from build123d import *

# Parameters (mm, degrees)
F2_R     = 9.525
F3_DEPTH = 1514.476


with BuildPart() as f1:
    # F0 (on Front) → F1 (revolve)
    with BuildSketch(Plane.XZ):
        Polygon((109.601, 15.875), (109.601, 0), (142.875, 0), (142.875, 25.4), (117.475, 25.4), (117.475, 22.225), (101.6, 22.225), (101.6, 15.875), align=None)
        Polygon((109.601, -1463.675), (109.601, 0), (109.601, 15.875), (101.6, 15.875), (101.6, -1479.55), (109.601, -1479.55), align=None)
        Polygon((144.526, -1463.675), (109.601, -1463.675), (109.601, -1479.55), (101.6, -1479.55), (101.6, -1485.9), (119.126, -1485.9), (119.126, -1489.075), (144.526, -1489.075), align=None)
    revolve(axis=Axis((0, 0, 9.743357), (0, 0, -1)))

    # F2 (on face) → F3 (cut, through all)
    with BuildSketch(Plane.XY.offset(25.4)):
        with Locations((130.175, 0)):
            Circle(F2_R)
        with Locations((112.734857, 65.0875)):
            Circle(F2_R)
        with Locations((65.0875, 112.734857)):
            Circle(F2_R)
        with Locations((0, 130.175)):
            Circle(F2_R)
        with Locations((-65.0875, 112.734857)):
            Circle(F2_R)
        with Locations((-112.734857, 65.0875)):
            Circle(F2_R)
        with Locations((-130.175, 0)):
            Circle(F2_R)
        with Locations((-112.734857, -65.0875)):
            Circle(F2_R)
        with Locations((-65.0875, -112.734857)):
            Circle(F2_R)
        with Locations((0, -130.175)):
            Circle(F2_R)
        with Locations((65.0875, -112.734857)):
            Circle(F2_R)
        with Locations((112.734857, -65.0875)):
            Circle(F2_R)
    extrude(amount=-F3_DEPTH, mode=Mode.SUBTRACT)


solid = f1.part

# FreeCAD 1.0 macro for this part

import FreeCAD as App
import Part
import Sketcher
Q = App.Units.Quantity


def add_polygon(sketch, points):
    """Adds a closed chain of lines whose ends are joined by coincident constraints."""
    first, n = sketch.GeometryCount, len(points)
    for a, b in zip(points, points[1:] + points[:1]):
        sketch.addGeometry(Part.LineSegment(App.Vector(*a, 0), App.Vector(*b, 0)), False)
    for i in range(n):
        sketch.addConstraint(Sketcher.Constraint("Coincident", first + i, 2, first + (i + 1) % n, 1))

doc = App.newDocument("Part")
params = doc.addObject("Spreadsheet::Sheet", "Params")
for row, (alias, value) in enumerate([
    ("sketch1_width", "1 in"),
    ("sketch1_width2", "1.31 in"),
    ("sketch1_width3", "0.69 in"),
    ("sketch1_width4", "0.625 in"),
    ("sketch1_height", "0.125 in"),
    ("revolution_angle", "360 deg"),
    ("sketch2_diameter", "0.75 in"),
], start=1):
    params.set(f"A{row}", alias)
    params.set(f"B{row}", "=" + value)
    params.setAlias(f"B{row}", alias)

body = doc.addObject("PartDesign::Body", "Body")

sketch1 = doc.addObject("Sketcher::SketchObject", "Sketch")
body.addObject(sketch1)
sketch1.AttachmentSupport = (doc.XZ_Plane, [""])
sketch1.MapMode = "FlatFace"
add_polygon(sketch1, [(109.6, 0), (142.9, 0), (142.9, 25.4), (117.5, 25.4), (117.5, 22.2), (101.6, 22.2), (101.6, -1485.9), (119.1, -1485.9), (119.1, -1489.1), (144.5, -1489.1), (144.5, -1463.7), (109.6, -1463.7)])
sketch1.addConstraint(Sketcher.Constraint("Horizontal", 0))
sketch1.addConstraint(Sketcher.Constraint("Vertical", 1))
sketch1.addConstraint(Sketcher.Constraint("Horizontal", 2))
sketch1.addConstraint(Sketcher.Constraint("Vertical", 3))
sketch1.addConstraint(Sketcher.Constraint("Horizontal", 4))
sketch1.addConstraint(Sketcher.Constraint("Vertical", 5))
sketch1.addConstraint(Sketcher.Constraint("Horizontal", 6))
sketch1.addConstraint(Sketcher.Constraint("Vertical", 7))
sketch1.addConstraint(Sketcher.Constraint("Horizontal", 8))
sketch1.addConstraint(Sketcher.Constraint("Vertical", 9))
sketch1.addConstraint(Sketcher.Constraint("Horizontal", 10))
sketch1.addConstraint(Sketcher.Constraint("Vertical", 11))
sketch1.addConstraint(Sketcher.Constraint("PointOnObject", 0, 2, -1))
sketch1.addConstraint(Sketcher.Constraint("Equal", 2, 8))
sketch1.addConstraint(Sketcher.Constraint("Equal", 8, 1))
sketch1.addConstraint(Sketcher.Constraint("Equal", 3, 7))
sketch1.addConstraint(Sketcher.Constraint("Equal", 1, 9))
sketch1.addConstraint(Sketcher.Constraint("DistanceX", 2, 2, 2, 1, Q("1 in")))
sketch1.addConstraint(Sketcher.Constraint("DistanceX", -1, 1, 4, 2, Q("4 in")))
sketch1.addConstraint(Sketcher.Constraint("DistanceX", 0, 1, 0, 2, Q("1.31 in")))
sketch1.addConstraint(Sketcher.Constraint("DistanceX", 6, 1, 6, 2, Q("0.69 in")))
sketch1.addConstraint(Sketcher.Constraint("DistanceY", 5, 2, -1, 1, Q("58.5 in")))
sketch1.addConstraint(Sketcher.Constraint("DistanceX", 4, 2, 4, 1, Q("0.625 in")))
sketch1.addConstraint(Sketcher.Constraint("DistanceY", 3, 2, 3, 1, Q("0.125 in")))
sketch1.setExpression("Constraints[29]", "Params.sketch1_width")
sketch1.setExpression("Constraints[31]", "Params.sketch1_width2")
sketch1.setExpression("Constraints[32]", "Params.sketch1_width3")
sketch1.setExpression("Constraints[34]", "Params.sketch1_width4")
sketch1.setExpression("Constraints[35]", "Params.sketch1_height")
revolution = doc.addObject("PartDesign::Revolution", "Revolution")
body.addObject(revolution)
revolution.Profile = sketch1
revolution.ReferenceAxis = (sketch1, ["V_Axis"])
revolution.setExpression("Angle", "Params.revolution_angle")

sketch2 = doc.addObject("Sketcher::SketchObject", "Sketch001")
body.addObject(sketch2)
sketch2.AttachmentSupport = (doc.XY_Plane, [""])
sketch2.MapMode = "FlatFace"
sketch2.AttachmentOffset = App.Placement(App.Vector(0, 0, 1 * 25.4), App.Rotation())
sketch2.addGeometry(Part.Circle(App.Vector(130, 0, 0), App.Vector(0, 0, 1), 10), False)
sketch2.addGeometry(Part.Circle(App.Vector(113, 65, 0), App.Vector(0, 0, 1), 10), False)
sketch2.addGeometry(Part.Circle(App.Vector(65, 113, 0), App.Vector(0, 0, 1), 10), False)
sketch2.addGeometry(Part.Circle(App.Vector(0, 130, 0), App.Vector(0, 0, 1), 10), False)
sketch2.addGeometry(Part.Circle(App.Vector(-65, 113, 0), App.Vector(0, 0, 1), 10), False)
sketch2.addGeometry(Part.Circle(App.Vector(-113, 65, 0), App.Vector(0, 0, 1), 10), False)
sketch2.addGeometry(Part.Circle(App.Vector(-130, 0, 0), App.Vector(0, 0, 1), 10), False)
sketch2.addGeometry(Part.Circle(App.Vector(-113, -65, 0), App.Vector(0, 0, 1), 10), False)
sketch2.addGeometry(Part.Circle(App.Vector(-65, -113, 0), App.Vector(0, 0, 1), 10), False)
sketch2.addGeometry(Part.Circle(App.Vector(0, -130, 0), App.Vector(0, 0, 1), 10), False)
sketch2.addGeometry(Part.Circle(App.Vector(65, -113, 0), App.Vector(0, 0, 1), 10), False)
sketch2.addGeometry(Part.Circle(App.Vector(113, -65, 0), App.Vector(0, 0, 1), 10), False)
sketch2.addConstraint(Sketcher.Constraint("Equal", 0, 1))
sketch2.addConstraint(Sketcher.Constraint("Equal", 1, 2))
sketch2.addConstraint(Sketcher.Constraint("Equal", 2, 3))
sketch2.addConstraint(Sketcher.Constraint("Equal", 3, 4))
sketch2.addConstraint(Sketcher.Constraint("Equal", 4, 5))
sketch2.addConstraint(Sketcher.Constraint("Equal", 5, 6))
sketch2.addConstraint(Sketcher.Constraint("Equal", 6, 7))
sketch2.addConstraint(Sketcher.Constraint("Equal", 7, 8))
sketch2.addConstraint(Sketcher.Constraint("Equal", 8, 9))
sketch2.addConstraint(Sketcher.Constraint("Equal", 9, 10))
sketch2.addConstraint(Sketcher.Constraint("Equal", 10, 11))
sketch2.addConstraint(Sketcher.Constraint("Symmetric", 0, 3, 6, 3, -1, 1))
sketch2.addConstraint(Sketcher.Constraint("Symmetric", 1, 3, 7, 3, -1, 1))
sketch2.addConstraint(Sketcher.Constraint("Symmetric", 2, 3, 8, 3, -1, 1))
sketch2.addConstraint(Sketcher.Constraint("Symmetric", 3, 3, 9, 3, -1, 1))
sketch2.addConstraint(Sketcher.Constraint("Symmetric", 4, 3, 10, 3, -1, 1))
sketch2.addConstraint(Sketcher.Constraint("Symmetric", 5, 3, 11, 3, -1, 1))
sketch2.addConstraint(Sketcher.Constraint("Symmetric", 2, 3, 4, 3, -2))
sketch2.addConstraint(Sketcher.Constraint("Symmetric", 1, 3, 5, 3, -2))
sketch2.addConstraint(Sketcher.Constraint("PointOnObject", 0, 3, -1))
sketch2.addConstraint(Sketcher.Constraint("PointOnObject", 3, 3, -2))
sketch2.addConstraint(Sketcher.Constraint("Diameter", 0, Q("0.75 in")))
sketch2.addConstraint(Sketcher.Constraint("DistanceX", -1, 1, 0, 3, Q("5.125 in")))
sketch2.addConstraint(Sketcher.Constraint("DistanceY", -1, 1, 1, 3, Q("2.5625 in")))
sketch2.addConstraint(Sketcher.Constraint("DistanceX", -1, 1, 2, 3, Q("2.5625 in")))
sketch2.addConstraint(Sketcher.Constraint("DistanceY", -1, 1, 3, 3, Q("5.125 in")))
sketch2.addConstraint(Sketcher.Constraint("DistanceX", -1, 1, 1, 3, Q("112.734857 mm")))
sketch2.addConstraint(Sketcher.Constraint("DistanceY", -1, 1, 2, 3, Q("112.734857 mm")))
sketch2.setExpression("Constraints[21]", "Params.sketch2_diameter")
pocket1 = doc.addObject("PartDesign::Pocket", "Pocket")
body.addObject(pocket1)
pocket1.Profile = sketch2
pocket1.Type = "ThroughAll"

doc.recompute()
